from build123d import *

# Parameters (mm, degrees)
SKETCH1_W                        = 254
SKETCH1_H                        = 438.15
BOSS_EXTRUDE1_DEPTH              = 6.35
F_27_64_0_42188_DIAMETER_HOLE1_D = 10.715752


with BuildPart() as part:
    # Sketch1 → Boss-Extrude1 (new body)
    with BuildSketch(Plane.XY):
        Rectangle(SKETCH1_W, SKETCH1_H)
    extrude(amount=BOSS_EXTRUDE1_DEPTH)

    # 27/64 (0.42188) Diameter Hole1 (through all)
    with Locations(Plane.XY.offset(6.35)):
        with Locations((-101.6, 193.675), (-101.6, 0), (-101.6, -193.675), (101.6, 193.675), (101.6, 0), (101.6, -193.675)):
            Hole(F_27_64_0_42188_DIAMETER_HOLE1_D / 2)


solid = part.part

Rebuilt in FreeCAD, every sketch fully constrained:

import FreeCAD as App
import Part
import Sketcher

V = App.Vector
Q = App.Units.Quantity

doc = App.newDocument("Part")
params = doc.addObject("Spreadsheet::Sheet", "Params")
for row, (alias, value) in enumerate([
    ("sketch1_width", "10 in"),
    ("sketch1_height", "17.25 in"),
    ("pad1_length", "0.25 in"),
    ("hole_diameter", "10.715752 mm"),
], start=1):
    params.set(f"A{row}", alias)
    params.set(f"B{row}", "=" + value)
    params.setAlias(f"B{row}", alias)

body = doc.addObject("PartDesign::Body", "Body")

# Sketch on XY plane
sketch1 = body.newObject("Sketcher::SketchObject", "Sketch")
sketch1.AttachmentSupport = (doc.getObject("XY_Plane"), [""])
sketch1.MapMode = "FlatFace"
sketch1.addGeometry([
    Part.LineSegment(V(-127, 219, 0), V(-127, -219, 0)),
    Part.LineSegment(V(-127, -219, 0), V(127, -219, 0)),
    Part.LineSegment(V(127, -219, 0), V(127, 219, 0)),
    Part.LineSegment(V(127, 219, 0), V(-127, 219, 0)),
], False)
sketch1.addConstraint([
    Sketcher.Constraint("Coincident", 0, 2, 1, 1),
    Sketcher.Constraint("Coincident", 1, 2, 2, 1),
    Sketcher.Constraint("Coincident", 2, 2, 3, 1),
    Sketcher.Constraint("Coincident", 3, 2, 0, 1),
    Sketcher.Constraint("Vertical", 0),
    Sketcher.Constraint("Horizontal", 1),
    Sketcher.Constraint("Vertical", 2),
    Sketcher.Constraint("Horizontal", 3),
    Sketcher.Constraint("Symmetric", 0, 2, 2, 2, -1, 1),
    Sketcher.Constraint("DistanceX", 1, 1, 1, 2, Q("10 in")),
    Sketcher.Constraint("DistanceY", 0, 2, 0, 1, Q("17.25 in")),
])
sketch1.setExpression("Constraints[9]", "Params.sketch1_width")
sketch1.setExpression("Constraints[10]", "Params.sketch1_height")
pad1 = body.newObject("PartDesign::Pad", "Pad")
pad1.Profile = sketch1
pad1.setExpression("Length", "Params.pad1_length")

# Sketch on XY plane
sketch2 = body.newObject("Sketcher::SketchObject", "Sketch001")
sketch2.AttachmentSupport = (doc.getObject("XY_Plane"), [""])
sketch2.MapMode = "FlatFace"
sketch2.AttachmentOffset = App.Placement(V(0, 0, 0.25 * 25.4), App.Rotation())
sketch2.addGeometry([
    Part.Circle(V(-102, 194, 0), V(0, 0, 1), 5),  # 0
    Part.Circle(V(-102, 0, 0), V(0, 0, 1), 5),  # 1
    Part.Circle(V(-102, -194, 0), V(0, 0, 1), 5),  # 2
    Part.Circle(V(102, 194, 0), V(0, 0, 1), 5),  # 3
    Part.Circle(V(102, 0, 0), V(0, 0, 1), 5),  # 4
    Part.Circle(V(102, -194, 0), V(0, 0, 1), 5),  # 5
], False)
sketch2.addConstraint([
    Sketcher.Constraint("Equal", 0, 1),
    Sketcher.Constraint("Equal", 1, 2),
    Sketcher.Constraint("Equal", 2, 3),
    Sketcher.Constraint("Equal", 3, 4),
    Sketcher.Constraint("Equal", 4, 5),
    Sketcher.Constraint("Symmetric", 2, 3, 3, 3, -1, 1),
    Sketcher.Constraint("Symmetric", 1, 3, 4, 3, -1, 1),
    Sketcher.Constraint("Symmetric", 0, 3, 5, 3, -1, 1),
    Sketcher.Constraint("Symmetric", 0, 3, 3, 3, -2),
    Sketcher.Constraint("PointOnObject", 1, 3, -1),
    Sketcher.Constraint("Vertical", 0, 3, 1, 3),
    Sketcher.Constraint("DistanceX", 0, 3, -1, 1, Q("4 in")),
    Sketcher.Constraint("DistanceY", 2, 3, 0, 3, Q("15.25 in")),
    Sketcher.Constraint("Diameter", 0, 10.715752),
])
doc.recompute()
hole = body.newObject("PartDesign::Hole", "Hole")
hole.Profile = sketch2
hole.ThreadType = "None"
hole.setExpression("Diameter", "Params.hole_diameter")
hole.DepthType = "ThroughAll"

doc.recompute()
